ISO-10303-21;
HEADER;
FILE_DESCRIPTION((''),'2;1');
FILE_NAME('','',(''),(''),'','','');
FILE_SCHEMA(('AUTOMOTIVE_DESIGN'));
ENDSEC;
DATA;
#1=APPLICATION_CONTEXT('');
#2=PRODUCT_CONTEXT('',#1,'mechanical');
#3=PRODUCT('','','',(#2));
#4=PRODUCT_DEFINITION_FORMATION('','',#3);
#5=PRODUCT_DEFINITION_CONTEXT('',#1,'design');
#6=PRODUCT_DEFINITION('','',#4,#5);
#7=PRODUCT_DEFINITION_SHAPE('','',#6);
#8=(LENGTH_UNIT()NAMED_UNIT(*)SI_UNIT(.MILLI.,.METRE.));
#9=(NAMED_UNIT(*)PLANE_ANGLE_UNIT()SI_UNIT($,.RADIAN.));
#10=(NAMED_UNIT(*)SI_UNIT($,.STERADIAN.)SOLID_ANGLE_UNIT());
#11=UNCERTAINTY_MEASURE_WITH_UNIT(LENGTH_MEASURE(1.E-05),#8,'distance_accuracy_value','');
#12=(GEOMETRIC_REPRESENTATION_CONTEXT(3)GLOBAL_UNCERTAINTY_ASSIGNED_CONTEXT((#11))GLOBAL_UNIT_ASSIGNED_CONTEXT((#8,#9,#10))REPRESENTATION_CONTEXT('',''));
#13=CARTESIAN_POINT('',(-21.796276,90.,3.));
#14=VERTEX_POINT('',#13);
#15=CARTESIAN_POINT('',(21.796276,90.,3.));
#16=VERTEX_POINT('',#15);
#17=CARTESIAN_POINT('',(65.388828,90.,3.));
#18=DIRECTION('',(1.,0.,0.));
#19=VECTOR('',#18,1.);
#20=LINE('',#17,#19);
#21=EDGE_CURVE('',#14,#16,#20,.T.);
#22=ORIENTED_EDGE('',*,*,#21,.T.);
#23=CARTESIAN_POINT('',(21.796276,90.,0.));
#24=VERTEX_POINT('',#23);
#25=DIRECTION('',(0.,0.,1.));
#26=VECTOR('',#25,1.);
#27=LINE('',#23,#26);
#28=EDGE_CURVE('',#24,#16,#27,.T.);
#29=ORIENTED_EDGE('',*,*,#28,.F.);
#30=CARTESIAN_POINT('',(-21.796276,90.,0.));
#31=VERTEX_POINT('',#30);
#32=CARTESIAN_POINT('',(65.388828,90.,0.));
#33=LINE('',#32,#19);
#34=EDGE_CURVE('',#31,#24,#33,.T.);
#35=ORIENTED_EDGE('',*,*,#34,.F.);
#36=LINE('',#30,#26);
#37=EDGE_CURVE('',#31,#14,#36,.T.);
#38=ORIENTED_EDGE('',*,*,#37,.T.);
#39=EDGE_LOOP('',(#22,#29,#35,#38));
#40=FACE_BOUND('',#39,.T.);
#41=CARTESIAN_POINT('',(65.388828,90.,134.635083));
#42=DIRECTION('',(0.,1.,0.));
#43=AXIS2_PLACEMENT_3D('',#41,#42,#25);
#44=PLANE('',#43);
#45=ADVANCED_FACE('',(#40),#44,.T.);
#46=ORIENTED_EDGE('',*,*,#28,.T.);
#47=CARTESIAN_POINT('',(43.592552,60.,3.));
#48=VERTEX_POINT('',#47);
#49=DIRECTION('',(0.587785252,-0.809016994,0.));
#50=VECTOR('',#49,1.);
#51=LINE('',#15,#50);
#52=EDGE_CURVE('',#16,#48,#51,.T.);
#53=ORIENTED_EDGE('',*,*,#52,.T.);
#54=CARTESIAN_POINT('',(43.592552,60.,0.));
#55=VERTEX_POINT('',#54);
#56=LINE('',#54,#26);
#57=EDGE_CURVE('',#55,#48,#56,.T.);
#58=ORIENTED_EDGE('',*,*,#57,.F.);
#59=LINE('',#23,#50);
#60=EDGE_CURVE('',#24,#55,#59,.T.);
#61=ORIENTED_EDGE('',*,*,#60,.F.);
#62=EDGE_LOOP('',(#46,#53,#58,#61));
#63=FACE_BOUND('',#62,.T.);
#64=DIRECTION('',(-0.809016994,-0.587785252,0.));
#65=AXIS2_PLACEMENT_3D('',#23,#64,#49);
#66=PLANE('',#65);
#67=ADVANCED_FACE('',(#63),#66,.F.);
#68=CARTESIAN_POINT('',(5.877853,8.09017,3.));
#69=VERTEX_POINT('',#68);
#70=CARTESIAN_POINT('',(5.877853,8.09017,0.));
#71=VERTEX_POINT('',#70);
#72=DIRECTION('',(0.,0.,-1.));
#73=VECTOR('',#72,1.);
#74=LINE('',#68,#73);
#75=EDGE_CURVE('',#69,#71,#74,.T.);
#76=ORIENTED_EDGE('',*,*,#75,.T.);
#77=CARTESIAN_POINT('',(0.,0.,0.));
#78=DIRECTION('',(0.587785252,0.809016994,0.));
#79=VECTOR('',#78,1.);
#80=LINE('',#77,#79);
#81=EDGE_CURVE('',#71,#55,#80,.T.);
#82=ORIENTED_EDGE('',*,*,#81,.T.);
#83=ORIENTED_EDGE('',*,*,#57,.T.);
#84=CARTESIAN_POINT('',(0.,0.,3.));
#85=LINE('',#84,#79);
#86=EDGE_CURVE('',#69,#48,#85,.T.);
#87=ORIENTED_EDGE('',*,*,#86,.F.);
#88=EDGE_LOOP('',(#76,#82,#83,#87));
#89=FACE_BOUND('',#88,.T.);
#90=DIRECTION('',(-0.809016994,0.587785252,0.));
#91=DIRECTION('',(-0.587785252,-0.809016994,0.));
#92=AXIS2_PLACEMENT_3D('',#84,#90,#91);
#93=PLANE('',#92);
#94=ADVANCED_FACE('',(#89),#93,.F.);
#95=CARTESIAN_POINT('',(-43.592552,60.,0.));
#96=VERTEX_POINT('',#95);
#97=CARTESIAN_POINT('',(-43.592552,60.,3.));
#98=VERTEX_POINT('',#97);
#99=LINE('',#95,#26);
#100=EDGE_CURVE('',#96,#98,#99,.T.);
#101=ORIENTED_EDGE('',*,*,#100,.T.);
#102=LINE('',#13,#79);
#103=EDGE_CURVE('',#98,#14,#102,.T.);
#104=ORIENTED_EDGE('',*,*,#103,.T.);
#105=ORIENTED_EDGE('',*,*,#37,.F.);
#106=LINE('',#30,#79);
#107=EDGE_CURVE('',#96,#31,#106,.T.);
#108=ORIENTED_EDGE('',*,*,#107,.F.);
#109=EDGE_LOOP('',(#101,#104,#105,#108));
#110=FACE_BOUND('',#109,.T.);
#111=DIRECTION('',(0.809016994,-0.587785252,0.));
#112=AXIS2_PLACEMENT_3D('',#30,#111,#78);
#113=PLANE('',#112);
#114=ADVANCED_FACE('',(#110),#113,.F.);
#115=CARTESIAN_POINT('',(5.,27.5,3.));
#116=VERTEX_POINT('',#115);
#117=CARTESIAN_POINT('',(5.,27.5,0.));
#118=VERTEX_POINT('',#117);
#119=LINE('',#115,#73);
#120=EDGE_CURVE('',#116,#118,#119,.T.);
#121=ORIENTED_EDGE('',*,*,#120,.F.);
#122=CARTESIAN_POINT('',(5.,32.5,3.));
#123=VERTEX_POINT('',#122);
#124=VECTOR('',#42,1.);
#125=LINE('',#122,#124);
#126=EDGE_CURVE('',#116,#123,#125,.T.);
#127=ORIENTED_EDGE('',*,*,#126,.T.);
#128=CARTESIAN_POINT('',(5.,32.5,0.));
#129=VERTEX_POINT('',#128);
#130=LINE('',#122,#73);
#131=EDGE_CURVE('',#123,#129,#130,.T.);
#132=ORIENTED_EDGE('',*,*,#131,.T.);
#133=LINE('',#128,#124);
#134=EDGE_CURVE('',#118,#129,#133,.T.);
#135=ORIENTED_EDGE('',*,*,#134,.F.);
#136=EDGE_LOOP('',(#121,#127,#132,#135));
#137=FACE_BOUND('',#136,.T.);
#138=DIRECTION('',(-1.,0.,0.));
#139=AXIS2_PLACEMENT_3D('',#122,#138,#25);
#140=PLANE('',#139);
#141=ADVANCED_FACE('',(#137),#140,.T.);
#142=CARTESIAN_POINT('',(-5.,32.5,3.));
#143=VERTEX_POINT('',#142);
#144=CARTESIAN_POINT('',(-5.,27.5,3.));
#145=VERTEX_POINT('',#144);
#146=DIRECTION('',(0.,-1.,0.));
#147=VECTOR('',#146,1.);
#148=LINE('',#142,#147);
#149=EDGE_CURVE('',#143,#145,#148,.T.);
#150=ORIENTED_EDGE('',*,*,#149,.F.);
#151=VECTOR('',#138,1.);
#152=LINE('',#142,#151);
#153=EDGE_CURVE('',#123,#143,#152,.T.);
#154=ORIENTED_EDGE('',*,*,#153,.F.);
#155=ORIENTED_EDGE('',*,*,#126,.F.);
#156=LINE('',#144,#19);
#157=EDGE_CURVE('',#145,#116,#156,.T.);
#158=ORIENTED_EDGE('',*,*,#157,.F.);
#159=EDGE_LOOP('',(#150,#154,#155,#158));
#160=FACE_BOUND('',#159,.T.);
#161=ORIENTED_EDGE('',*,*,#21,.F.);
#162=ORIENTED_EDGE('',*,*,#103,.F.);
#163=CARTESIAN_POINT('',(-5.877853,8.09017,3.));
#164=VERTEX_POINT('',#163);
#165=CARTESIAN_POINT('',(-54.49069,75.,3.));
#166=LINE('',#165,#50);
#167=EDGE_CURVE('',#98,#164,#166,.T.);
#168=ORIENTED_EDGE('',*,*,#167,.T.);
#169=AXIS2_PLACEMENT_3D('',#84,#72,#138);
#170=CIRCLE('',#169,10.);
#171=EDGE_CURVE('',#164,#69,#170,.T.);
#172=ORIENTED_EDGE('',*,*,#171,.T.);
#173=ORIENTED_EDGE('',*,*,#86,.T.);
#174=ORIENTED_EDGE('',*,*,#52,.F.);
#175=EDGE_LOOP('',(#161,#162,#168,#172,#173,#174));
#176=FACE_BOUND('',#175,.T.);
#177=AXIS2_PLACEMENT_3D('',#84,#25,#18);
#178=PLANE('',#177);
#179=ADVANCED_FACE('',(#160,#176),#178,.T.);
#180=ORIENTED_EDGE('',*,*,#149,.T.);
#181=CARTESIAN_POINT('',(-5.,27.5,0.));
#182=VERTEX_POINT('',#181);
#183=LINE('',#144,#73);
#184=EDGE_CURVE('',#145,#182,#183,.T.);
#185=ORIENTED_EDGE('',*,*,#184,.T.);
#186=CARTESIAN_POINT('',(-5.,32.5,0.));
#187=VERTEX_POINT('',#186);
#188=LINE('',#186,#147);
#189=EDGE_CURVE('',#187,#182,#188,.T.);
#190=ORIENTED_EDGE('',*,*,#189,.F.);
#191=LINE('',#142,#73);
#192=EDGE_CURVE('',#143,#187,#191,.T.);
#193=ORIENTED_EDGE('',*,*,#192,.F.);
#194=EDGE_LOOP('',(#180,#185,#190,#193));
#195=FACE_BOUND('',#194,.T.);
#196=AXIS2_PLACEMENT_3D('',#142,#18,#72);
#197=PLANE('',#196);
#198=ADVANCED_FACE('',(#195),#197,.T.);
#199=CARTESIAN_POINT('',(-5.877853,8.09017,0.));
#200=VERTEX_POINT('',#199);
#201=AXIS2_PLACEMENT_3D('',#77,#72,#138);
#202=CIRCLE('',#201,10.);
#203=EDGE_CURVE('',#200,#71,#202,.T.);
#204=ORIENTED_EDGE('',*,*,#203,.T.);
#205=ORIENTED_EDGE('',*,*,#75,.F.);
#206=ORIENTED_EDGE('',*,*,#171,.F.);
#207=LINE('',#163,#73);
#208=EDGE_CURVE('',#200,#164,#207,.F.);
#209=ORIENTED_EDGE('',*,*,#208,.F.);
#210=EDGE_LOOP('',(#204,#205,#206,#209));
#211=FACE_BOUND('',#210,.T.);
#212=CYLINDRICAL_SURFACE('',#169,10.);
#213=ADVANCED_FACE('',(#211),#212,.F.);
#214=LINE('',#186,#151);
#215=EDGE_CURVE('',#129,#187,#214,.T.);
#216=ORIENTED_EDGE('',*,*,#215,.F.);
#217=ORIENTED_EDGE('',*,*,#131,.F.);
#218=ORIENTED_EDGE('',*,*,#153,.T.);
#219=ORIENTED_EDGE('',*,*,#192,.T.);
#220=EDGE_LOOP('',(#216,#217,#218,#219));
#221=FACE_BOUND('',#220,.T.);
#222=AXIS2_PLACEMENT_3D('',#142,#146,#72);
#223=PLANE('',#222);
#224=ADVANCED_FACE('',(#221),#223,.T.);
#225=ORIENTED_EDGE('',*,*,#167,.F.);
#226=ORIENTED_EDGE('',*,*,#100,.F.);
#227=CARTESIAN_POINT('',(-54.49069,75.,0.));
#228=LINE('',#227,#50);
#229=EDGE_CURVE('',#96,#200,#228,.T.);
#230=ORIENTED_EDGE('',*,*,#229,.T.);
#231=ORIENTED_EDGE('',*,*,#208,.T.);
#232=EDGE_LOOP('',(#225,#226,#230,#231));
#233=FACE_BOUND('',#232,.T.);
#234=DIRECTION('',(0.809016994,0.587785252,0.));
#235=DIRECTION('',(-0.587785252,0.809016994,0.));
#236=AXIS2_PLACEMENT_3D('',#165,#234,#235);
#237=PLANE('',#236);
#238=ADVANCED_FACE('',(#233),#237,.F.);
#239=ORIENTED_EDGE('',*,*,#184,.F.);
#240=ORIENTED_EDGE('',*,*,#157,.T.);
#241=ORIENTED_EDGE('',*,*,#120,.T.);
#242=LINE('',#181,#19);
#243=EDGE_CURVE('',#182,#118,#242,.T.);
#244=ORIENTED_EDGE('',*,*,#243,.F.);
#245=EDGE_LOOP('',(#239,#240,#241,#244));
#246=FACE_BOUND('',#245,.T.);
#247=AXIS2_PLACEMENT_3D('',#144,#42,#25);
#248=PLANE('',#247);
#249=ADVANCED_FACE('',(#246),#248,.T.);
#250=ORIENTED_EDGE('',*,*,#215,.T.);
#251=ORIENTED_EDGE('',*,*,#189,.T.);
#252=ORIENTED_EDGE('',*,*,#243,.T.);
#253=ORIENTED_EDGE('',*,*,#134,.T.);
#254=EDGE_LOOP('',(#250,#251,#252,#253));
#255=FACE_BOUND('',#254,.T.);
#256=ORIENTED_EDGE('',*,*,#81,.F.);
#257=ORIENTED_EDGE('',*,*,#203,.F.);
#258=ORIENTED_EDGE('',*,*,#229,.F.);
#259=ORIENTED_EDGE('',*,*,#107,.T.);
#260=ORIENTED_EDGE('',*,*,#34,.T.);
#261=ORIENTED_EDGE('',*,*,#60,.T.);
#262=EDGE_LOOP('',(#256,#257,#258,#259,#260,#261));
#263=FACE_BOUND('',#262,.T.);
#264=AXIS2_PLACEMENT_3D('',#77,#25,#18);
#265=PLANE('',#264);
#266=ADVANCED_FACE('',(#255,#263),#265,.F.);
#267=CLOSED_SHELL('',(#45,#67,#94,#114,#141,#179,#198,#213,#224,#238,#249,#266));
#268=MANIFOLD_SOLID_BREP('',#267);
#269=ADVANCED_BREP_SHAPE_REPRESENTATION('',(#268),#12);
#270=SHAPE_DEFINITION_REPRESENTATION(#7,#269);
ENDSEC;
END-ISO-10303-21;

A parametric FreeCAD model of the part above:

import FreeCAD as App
import Part
import Sketcher
from FreeCAD import Vector
Q = App.Units.Quantity


def add_polygon(sketch, points):
    """Adds a closed chain of lines whose ends are joined by coincident constraints."""
    first, n = sketch.GeometryCount, len(points)
    for a, b in zip(points, points[1:] + points[:1]):
        sketch.addGeometry(Part.LineSegment(App.Vector(*a, 0), App.Vector(*b, 0)), False)
    for i in range(n):
        sketch.addConstraint(Sketcher.Constraint("Coincident", first + i, 2, first + (i + 1) % n, 1))

doc = App.newDocument("Part")
body = doc.addObject("PartDesign::Body", "Body")

sketch1 = doc.addObject("Sketcher::SketchObject", "Sketch")
body.addObject(sketch1)
sketch1.AttachmentSupport = (doc.XY_Plane, [""])
sketch1.MapMode = "FlatFace"
add_polygon(sketch1, [(0, 0), (54, 75), (-54, 75)])
add_polygon(sketch1, [(5, 28), (-5, 28), (-5, 32), (5, 32)])
sketch1.addConstraint([
    Sketcher.Constraint("Horizontal", 1),
    Sketcher.Constraint("Horizontal", 3),
    Sketcher.Constraint("Vertical", 4),
    Sketcher.Constraint("Horizontal", 5),
    Sketcher.Constraint("Vertical", 6),
    Sketcher.Constraint("Coincident", 2, 2, -1, 1),
    Sketcher.Constraint("Equal", 0, 2),
    Sketcher.Constraint("DistanceX", 3, 2, 3, 1, 10.0),
    Sketcher.Constraint("DistanceY", 4, 1, 4, 2, 5.0),
    Sketcher.Constraint("Angle", 0, Q("54 deg")),
    Sketcher.Constraint("DistanceY", -1, 1, 0, 2, 75.0),
    Sketcher.Constraint("DistanceX", 3, 2, -1, 1, 5.0),
    Sketcher.Constraint("DistanceY", -1, 1, 3, 2, 27.5),
])
pad1 = doc.addObject("PartDesign::Pad", "Pad")
body.addObject(pad1)
pad1.Profile = sketch1
pad1.Length = 3

sketch2 = doc.addObject("Sketcher::SketchObject", "Sketch001")
body.addObject(sketch2)
sketch2.AttachmentSupport = (doc.XY_Plane, [""])
sketch2.MapMode = "FlatFace"
add_polygon(sketch2, [(65, 90), (54, 75), (-54, 75), (-65, 90)])
sketch2.addConstraint([
    Sketcher.Constraint("Horizontal", 1),
    Sketcher.Constraint("Horizontal", 3),
    Sketcher.Constraint("Equal", 0, 2),
    Sketcher.Constraint("Angle", 0, Q("-126 deg")),
    Sketcher.Constraint("DistanceY", -1, 1, 0, 2, 75.0),
    Sketcher.Constraint("DistanceY", -1, 1, 2, 2, 90.0),
    Sketcher.Constraint("DistanceX", 1, 2, 1, 1, 108.981379),
    Sketcher.Constraint("DistanceX", -1, 1, 0, 2, 54.49069),
])
pad2 = doc.addObject("PartDesign::Pad", "Pad001")
body.addObject(pad2)
pad2.Profile = sketch2
pad2.Length = 3

sketch3 = doc.addObject("Sketcher::SketchObject", "Sketch002")
body.addObject(sketch3)
sketch3.AttachmentSupport = (doc.XY_Plane, [""])
sketch3.MapMode = "FlatFace"
sketch3.AttachmentOffset = App.Placement(Vector(0, 0, 3), App.Rotation())
add_polygon(sketch3, [(-22, 90), (-65, 90), (-44, 60)])
add_polygon(sketch3, [(65, 90), (22, 90), (44, 60)])
sketch3.addConstraint([
    Sketcher.Constraint("Horizontal", 0),
    Sketcher.Constraint("Horizontal", 3),
    Sketcher.Constraint("Symmetric", 2, 2, 3, 2, -2),
    Sketcher.Constraint("Symmetric", 1, 2, 4, 2, -2),
    Sketcher.Constraint("Parallel", 1, 4),
    Sketcher.Constraint("Parallel", 2, 5),
    Sketcher.Constraint("Angle", 1, Q("-54 deg")),
    Sketcher.Constraint("DistanceY", -1, 1, 0, 2, 90.0),
    Sketcher.Constraint("DistanceY", -1, 1, 1, 2, 60.0),
    Sketcher.Constraint("DistanceX", 1, 2, -1, 1, 43.592552),
])
pocket1 = doc.addObject("PartDesign::Pocket", "Pocket")
body.addObject(pocket1)
pocket1.Profile = sketch3
pocket1.Type = "ThroughAll"

sketch4 = doc.addObject("Sketcher::SketchObject", "Sketch003")
body.addObject(sketch4)
sketch4.AttachmentSupport = (doc.XY_Plane, [""])
sketch4.MapMode = "FlatFace"
sketch4.addGeometry(Part.Circle(Vector(0, 0, 0), Vector(0, 0, 1), 10), False)
sketch4.addConstraint([
    Sketcher.Constraint("Coincident", 0, 3, -1, 1),
    Sketcher.Constraint("Diameter", 0, 20.0),
])
pocket2 = doc.addObject("PartDesign::Pocket", "Pocket001")
body.addObject(pocket2)
pocket2.Profile = sketch4
pocket2.Type = "ThroughAll"
pocket2.Reversed = True

doc.recompute()
